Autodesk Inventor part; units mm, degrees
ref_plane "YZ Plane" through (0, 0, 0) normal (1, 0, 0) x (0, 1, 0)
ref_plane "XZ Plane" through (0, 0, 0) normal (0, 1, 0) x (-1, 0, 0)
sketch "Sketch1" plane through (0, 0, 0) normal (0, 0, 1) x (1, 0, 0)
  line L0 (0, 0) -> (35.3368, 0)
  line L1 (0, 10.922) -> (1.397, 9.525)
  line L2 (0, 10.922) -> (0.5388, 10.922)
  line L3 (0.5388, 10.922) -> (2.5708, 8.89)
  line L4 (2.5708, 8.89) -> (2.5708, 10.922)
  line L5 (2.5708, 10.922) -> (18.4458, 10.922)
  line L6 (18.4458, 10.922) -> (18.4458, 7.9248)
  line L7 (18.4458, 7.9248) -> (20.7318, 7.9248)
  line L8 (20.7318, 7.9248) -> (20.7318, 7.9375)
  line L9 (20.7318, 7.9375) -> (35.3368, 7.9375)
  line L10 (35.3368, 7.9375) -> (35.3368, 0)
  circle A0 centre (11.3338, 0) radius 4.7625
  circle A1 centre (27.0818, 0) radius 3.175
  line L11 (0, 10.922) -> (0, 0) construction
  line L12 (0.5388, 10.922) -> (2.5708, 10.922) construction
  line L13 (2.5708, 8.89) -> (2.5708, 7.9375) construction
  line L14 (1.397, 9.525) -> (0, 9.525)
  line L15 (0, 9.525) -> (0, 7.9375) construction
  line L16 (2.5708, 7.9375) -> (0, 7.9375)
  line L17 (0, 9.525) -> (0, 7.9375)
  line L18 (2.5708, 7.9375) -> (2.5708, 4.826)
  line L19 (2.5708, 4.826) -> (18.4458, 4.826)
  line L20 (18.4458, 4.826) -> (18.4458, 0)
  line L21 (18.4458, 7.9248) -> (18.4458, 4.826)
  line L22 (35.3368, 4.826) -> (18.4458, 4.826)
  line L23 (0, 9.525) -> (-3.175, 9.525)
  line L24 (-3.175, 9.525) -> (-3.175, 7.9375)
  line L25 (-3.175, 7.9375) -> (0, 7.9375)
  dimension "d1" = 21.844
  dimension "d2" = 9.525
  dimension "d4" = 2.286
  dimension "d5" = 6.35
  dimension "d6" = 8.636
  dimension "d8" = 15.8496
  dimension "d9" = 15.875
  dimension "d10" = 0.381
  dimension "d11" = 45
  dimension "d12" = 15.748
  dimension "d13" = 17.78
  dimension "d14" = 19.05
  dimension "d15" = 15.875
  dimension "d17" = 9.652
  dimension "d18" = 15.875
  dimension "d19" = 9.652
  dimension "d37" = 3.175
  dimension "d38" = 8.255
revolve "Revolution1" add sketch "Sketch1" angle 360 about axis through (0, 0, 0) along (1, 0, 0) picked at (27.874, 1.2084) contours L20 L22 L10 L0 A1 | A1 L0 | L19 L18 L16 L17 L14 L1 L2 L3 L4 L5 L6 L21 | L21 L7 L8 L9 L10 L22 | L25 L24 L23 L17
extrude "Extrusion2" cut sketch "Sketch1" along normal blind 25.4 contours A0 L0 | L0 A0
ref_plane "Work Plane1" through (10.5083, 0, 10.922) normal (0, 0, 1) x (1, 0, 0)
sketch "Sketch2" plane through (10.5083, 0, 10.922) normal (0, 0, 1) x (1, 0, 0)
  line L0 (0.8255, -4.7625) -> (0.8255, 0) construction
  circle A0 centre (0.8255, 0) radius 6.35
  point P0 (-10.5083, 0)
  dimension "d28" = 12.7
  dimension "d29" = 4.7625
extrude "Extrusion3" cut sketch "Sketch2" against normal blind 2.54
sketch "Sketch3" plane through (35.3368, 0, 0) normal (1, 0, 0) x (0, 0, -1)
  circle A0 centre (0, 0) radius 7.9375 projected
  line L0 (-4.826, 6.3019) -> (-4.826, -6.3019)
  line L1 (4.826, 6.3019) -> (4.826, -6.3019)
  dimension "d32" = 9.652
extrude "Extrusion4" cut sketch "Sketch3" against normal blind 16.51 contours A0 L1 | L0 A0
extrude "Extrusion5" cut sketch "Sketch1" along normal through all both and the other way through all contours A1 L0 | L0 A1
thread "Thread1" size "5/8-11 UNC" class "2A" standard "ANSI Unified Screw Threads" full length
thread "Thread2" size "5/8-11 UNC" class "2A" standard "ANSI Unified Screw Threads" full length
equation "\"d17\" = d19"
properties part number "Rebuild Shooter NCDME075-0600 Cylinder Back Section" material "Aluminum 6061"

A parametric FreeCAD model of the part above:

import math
import FreeCAD as App
import Part
import Sketcher

V = App.Vector
Q = App.Units.Quantity


def add_polygon(sketch, points):
    """Adds a closed chain of lines whose ends are joined by coincident constraints."""
    first, n = sketch.GeometryCount, len(points)
    for a, b in zip(points, points[1:] + points[:1]):
        sketch.addGeometry(Part.LineSegment(App.Vector(*a, 0), App.Vector(*b, 0)), False)
    for i in range(n):
        sketch.addConstraint(Sketcher.Constraint("Coincident", first + i, 2, first + (i + 1) % n, 1))

doc = App.newDocument("Part")
body = doc.addObject("PartDesign::Body", "Body")

# Sketch on XY plane
sketch1 = body.newObject("Sketcher::SketchObject", "Sketch")
sketch1.AttachmentSupport = (doc.getObject("XY_Plane"), [""])
sketch1.MapMode = "FlatFace"
add_polygon(sketch1, [(18.446, 4.826), (18.446, 0), (35.337, 0), (35.337, 7.938), (20.732, 7.938), (20.732, 7.925), (18.446, 7.925), (18.446, 10.922), (2.571, 10.922), (2.571, 8.89), (0.539, 10.922), (0, 10.922), (1.397, 9.525), (-3.175, 9.525), (-3.175, 7.938), (2.571, 7.938), (2.571, 4.826)])  # lines 0-16
sketch1.addConstraint(Sketcher.Constraint("Vertical", 0))
sketch1.addConstraint(Sketcher.Constraint("Horizontal", 1))
sketch1.addConstraint(Sketcher.Constraint("Vertical", 2))
sketch1.addConstraint(Sketcher.Constraint("Horizontal", 3))
sketch1.addConstraint(Sketcher.Constraint("Vertical", 4))
sketch1.addConstraint(Sketcher.Constraint("Horizontal", 5))
sketch1.addConstraint(Sketcher.Constraint("Vertical", 6))
sketch1.addConstraint(Sketcher.Constraint("Horizontal", 7))
sketch1.addConstraint(Sketcher.Constraint("Vertical", 8))
sketch1.addConstraint(Sketcher.Constraint("Horizontal", 10))
sketch1.addConstraint(Sketcher.Constraint("Horizontal", 12))
sketch1.addConstraint(Sketcher.Constraint("Vertical", 13))
sketch1.addConstraint(Sketcher.Constraint("Horizontal", 14))
sketch1.addConstraint(Sketcher.Constraint("Vertical", 15))
sketch1.addConstraint(Sketcher.Constraint("Horizontal", 16))
sketch1.addConstraint(Sketcher.Constraint("PointOnObject", 0, 2, -1))
sketch1.addConstraint(Sketcher.Constraint("PointOnObject", 10, 2, -2))
sketch1.addConstraint(Sketcher.Constraint("Parallel", 9, 11))
sketch1.addConstraint(Sketcher.Constraint("Horizontal", 7, 2, 9, 2))
sketch1.addConstraint(Sketcher.Constraint("Horizontal", 3, 2, 13, 2))
sketch1.addConstraint(Sketcher.Constraint("Vertical", 0, 2, 5, 2))
sketch1.addConstraint(Sketcher.Constraint("Vertical", 8, 2, 14, 2))
sketch1.addConstraint(Sketcher.Constraint("Angle", 11, Q("-45 deg")))
sketch1.addConstraint(Sketcher.Constraint("DistanceX", 5, 2, 5, 1, Q("0.09 in")))
sketch1.addConstraint(Sketcher.Constraint("DistanceX", 7, 2, 7, 1, Q("0.625 in")))
sketch1.addConstraint(Sketcher.Constraint("DistanceY", -1, 1, 11, 2, Q("0.375 in")))
sketch1.addConstraint(Sketcher.Constraint("DistanceX", 12, 2, -1, 1, Q("0.125 in")))
sketch1.addConstraint(Sketcher.Constraint("DistanceX", 12, 2, 12, 1, Q("0.18 in")))
sketch1.addConstraint(Sketcher.Constraint("DistanceY", 0, 2, 0, 1, Q("0.19 in")))
sketch1.addConstraint(Sketcher.Constraint("DistanceY", 8, 2, 8, 1, Q("0.08 in")))
sketch1.addConstraint(Sketcher.Constraint("DistanceX", 1, 1, 1, 2, Q("0.665 in")))
sketch1.addConstraint(Sketcher.Constraint("DistanceY", 2, 1, 2, 2, Q("0.3125 in")))
sketch1.addConstraint(Sketcher.Constraint("DistanceY", 6, 1, 6, 2, Q("0.118 in")))
sketch1.addConstraint(Sketcher.Constraint("DistanceX", 10, 2, 10, 1, 0.5388))
revolution = body.newObject("PartDesign::Revolution", "Revolution")
revolution.Profile = sketch1
revolution.ReferenceAxis = (sketch1, ["H_Axis"])
revolution.Angle = 360

# Sketch on XY plane
sketch2 = body.newObject("Sketcher::SketchObject", "Sketch001")
sketch2.AttachmentSupport = (doc.getObject("XY_Plane"), [""])
sketch2.MapMode = "FlatFace"
sketch2.addGeometry(Part.Circle(V(11.3, 0, 0), V(0, 0, 1), 4.8), False)
sketch2.addConstraint(Sketcher.Constraint("PointOnObject", 0, 3, -1))
sketch2.addConstraint(Sketcher.Constraint("Diameter", 0, Q("0.375 in")))
sketch2.addConstraint(Sketcher.Constraint("DistanceX", -1, 1, 0, 3, 11.3338))
pocket1 = body.newObject("PartDesign::Pocket", "Pocket")
pocket1.Profile = sketch2
pocket1.Length = Q("1 in")
pocket1.Reversed = True

# Sketch on XY plane
sketch3 = body.newObject("Sketcher::SketchObject", "Sketch002")
sketch3.AttachmentSupport = (doc.getObject("XY_Plane"), [""])
sketch3.MapMode = "FlatFace"
sketch3.AttachmentOffset = App.Placement(V(0, 0, 0.43 * 25.4), App.Rotation())
sketch3.addGeometry(Part.Circle(V(11, 0, 0), V(0, 0, 1), 6), False)
sketch3.addConstraint(Sketcher.Constraint("PointOnObject", 0, 3, -1))
sketch3.addConstraint(Sketcher.Constraint("Diameter", 0, Q("0.5 in")))
sketch3.addConstraint(Sketcher.Constraint("DistanceX", -1, 1, 0, 3, 11.3338))
pocket2 = body.newObject("PartDesign::Pocket", "Pocket001")
pocket2.Profile = sketch3
pocket2.Length = Q("0.1 in")

# Sketch on YZ plane
sketch4 = body.newObject("Sketcher::SketchObject", "Sketch003")
sketch4.AttachmentSupport = (doc.getObject("YZ_Plane"), [""])
sketch4.MapMode = "FlatFace"
sketch4.AttachmentOffset = App.Placement(V(0, 0, 35.3368), App.Rotation())
sketch4.addGeometry(Part.ArcOfCircle(Part.Circle(V(0, 0, 0), V(0, 0, 1), 8), math.radians(-143), math.radians(-37)), False)
sketch4.addGeometry(Part.LineSegment(V(-6, -5, 0), V(6, -5, 0)), False)
sketch4.addGeometry(Part.LineSegment(V(-6, 5, 0), V(6, 5, 0)), False)
sketch4.addGeometry(Part.ArcOfCircle(Part.Circle(V(0, 0, 0), V(0, 0, 1), 8), math.radians(37), math.radians(143)), False)
sketch4.addConstraint(Sketcher.Constraint("Coincident", 0, 1, 1, 1))
sketch4.addConstraint(Sketcher.Constraint("Coincident", 1, 2, 0, 2))
sketch4.addConstraint(Sketcher.Constraint("Coincident", 2, 1, 3, 2))
sketch4.addConstraint(Sketcher.Constraint("Coincident", 3, 1, 2, 2))
sketch4.addConstraint(Sketcher.Constraint("Horizontal", 1))
sketch4.addConstraint(Sketcher.Constraint("Horizontal", 2))
sketch4.addConstraint(Sketcher.Constraint("Coincident", 0, 3, -1, 1))
sketch4.addConstraint(Sketcher.Constraint("Coincident", 3, 3, -1, 1))
sketch4.addConstraint(Sketcher.Constraint("Equal", 0, 3))
sketch4.addConstraint(Sketcher.Constraint("Vertical", 0, 1, 2, 1))
sketch4.addConstraint(Sketcher.Constraint("DistanceY", 0, 1, 2, 1, Q("0.38 in")))
sketch4.addConstraint(Sketcher.Constraint("Radius", 0, Q("0.3125 in")))
pocket3 = body.newObject("PartDesign::Pocket", "Pocket002")
pocket3.Profile = sketch4
pocket3.Length = Q("0.65 in")

# Sketch on XY plane
sketch5 = body.newObject("Sketcher::SketchObject", "Sketch004")
sketch5.AttachmentSupport = (doc.getObject("XY_Plane"), [""])
sketch5.MapMode = "FlatFace"
sketch5.addGeometry(Part.Circle(V(27.1, 0, 0), V(0, 0, 1), 3.2), False)
sketch5.addConstraint(Sketcher.Constraint("PointOnObject", 0, 3, -1))
sketch5.addConstraint(Sketcher.Constraint("Diameter", 0, Q("0.25 in")))
sketch5.addConstraint(Sketcher.Constraint("DistanceX", -1, 1, 0, 3, 27.0818))
pocket4 = body.newObject("PartDesign::Pocket", "Pocket003")
pocket4.Profile = sketch5
pocket4.Type = "ThroughAll"
pocket4.Midplane = True

doc.recompute()
